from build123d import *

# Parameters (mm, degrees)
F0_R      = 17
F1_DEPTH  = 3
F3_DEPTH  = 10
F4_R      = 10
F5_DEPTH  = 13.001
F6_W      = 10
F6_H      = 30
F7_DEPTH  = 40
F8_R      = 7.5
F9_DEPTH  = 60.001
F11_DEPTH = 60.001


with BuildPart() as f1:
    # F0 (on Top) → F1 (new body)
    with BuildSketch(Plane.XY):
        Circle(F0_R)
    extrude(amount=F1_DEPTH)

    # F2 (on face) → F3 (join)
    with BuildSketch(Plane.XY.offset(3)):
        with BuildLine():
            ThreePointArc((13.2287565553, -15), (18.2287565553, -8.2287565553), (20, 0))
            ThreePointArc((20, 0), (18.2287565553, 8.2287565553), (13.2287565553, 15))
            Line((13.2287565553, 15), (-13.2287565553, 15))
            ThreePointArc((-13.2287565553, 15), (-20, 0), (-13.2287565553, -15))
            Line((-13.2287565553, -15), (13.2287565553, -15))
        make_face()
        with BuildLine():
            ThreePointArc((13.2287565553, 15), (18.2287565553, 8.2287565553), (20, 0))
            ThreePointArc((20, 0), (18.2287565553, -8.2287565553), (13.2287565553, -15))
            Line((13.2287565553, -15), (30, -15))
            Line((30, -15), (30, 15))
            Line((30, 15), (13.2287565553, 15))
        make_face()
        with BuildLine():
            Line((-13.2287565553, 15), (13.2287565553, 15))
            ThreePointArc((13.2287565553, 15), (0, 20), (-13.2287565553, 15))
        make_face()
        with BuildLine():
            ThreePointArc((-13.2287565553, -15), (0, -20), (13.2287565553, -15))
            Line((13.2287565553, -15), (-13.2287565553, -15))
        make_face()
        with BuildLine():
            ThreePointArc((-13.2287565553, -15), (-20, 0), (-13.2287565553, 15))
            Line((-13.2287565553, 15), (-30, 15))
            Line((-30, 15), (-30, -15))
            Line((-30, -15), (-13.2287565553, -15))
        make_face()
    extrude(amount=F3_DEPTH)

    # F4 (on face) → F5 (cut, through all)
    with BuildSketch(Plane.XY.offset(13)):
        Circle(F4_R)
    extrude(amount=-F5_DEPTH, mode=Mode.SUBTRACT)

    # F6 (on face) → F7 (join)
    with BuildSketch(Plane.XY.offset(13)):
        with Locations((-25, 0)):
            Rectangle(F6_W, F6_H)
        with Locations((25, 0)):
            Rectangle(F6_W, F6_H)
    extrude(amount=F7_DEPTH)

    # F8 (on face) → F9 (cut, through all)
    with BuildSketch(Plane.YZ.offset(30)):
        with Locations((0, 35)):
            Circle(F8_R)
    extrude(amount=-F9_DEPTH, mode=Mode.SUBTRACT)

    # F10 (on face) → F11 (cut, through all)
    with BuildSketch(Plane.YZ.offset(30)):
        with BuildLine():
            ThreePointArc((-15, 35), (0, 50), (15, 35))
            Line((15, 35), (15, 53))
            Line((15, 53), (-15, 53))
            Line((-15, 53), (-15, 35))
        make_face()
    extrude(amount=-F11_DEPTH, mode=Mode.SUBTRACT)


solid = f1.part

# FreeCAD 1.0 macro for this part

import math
import FreeCAD as App
import Part
import Sketcher


def add_polygon(sketch, points):
    """Adds a closed chain of lines whose ends are joined by coincident constraints."""
    first, n = sketch.GeometryCount, len(points)
    for a, b in zip(points, points[1:] + points[:1]):
        sketch.addGeometry(Part.LineSegment(App.Vector(*a, 0), App.Vector(*b, 0)), False)
    for i in range(n):
        sketch.addConstraint(Sketcher.Constraint("Coincident", first + i, 2, first + (i + 1) % n, 1))

doc = App.newDocument("Part")
body = doc.addObject("PartDesign::Body", "Body")

sketch1 = body.newObject("Sketcher::SketchObject", "Sketch")
sketch1.AttachmentSupport = (doc.getObject("XY_Plane"), [""])
sketch1.MapMode = "FlatFace"
sketch1.addGeometry(Part.Circle(App.Vector(0, 0, 0), App.Vector(0, 0, 1), 17), False)
sketch1.addConstraint([
    Sketcher.Constraint("Coincident", 0, 3, -1, 1),
    Sketcher.Constraint("Diameter", 0, 34.0),
])
pad1 = body.newObject("PartDesign::Pad", "Pad")
pad1.Profile = sketch1
pad1.Length = 3

sketch2 = body.newObject("Sketcher::SketchObject", "Sketch001")
sketch2.AttachmentSupport = (doc.getObject("XY_Plane"), [""])
sketch2.MapMode = "FlatFace"
sketch2.AttachmentOffset = App.Placement(App.Vector(0, 0, 3), App.Rotation())
sketch2.addGeometry([
    Part.ArcOfCircle(Part.Circle(App.Vector(0, 0, 0), App.Vector(0, 0, 1), 20), math.radians(-131), math.radians(-49)),
    Part.LineSegment(App.Vector(13, -15, 0), App.Vector(30, -15, 0)),
    Part.LineSegment(App.Vector(30, -15, 0), App.Vector(30, 15, 0)),
    Part.LineSegment(App.Vector(30, 15, 0), App.Vector(13, 15, 0)),
    Part.ArcOfCircle(Part.Circle(App.Vector(0, 0, 0), App.Vector(0, 0, 1), 20), math.radians(49), math.radians(131)),
    Part.LineSegment(App.Vector(-13, 15, 0), App.Vector(-30, 15, 0)),
    Part.LineSegment(App.Vector(-30, 15, 0), App.Vector(-30, -15, 0)),
    Part.LineSegment(App.Vector(-30, -15, 0), App.Vector(-13, -15, 0)),
], False)
sketch2.addConstraint([
    Sketcher.Constraint("Coincident", 0, 2, 1, 1),
    Sketcher.Constraint("Coincident", 1, 2, 2, 1),
    Sketcher.Constraint("Coincident", 2, 2, 3, 1),
    Sketcher.Constraint("Coincident", 3, 2, 4, 1),
    Sketcher.Constraint("Coincident", 4, 2, 5, 1),
    Sketcher.Constraint("Coincident", 5, 2, 6, 1),
    Sketcher.Constraint("Coincident", 6, 2, 7, 1),
    Sketcher.Constraint("Coincident", 7, 2, 0, 1),
    Sketcher.Constraint("Horizontal", 1),
    Sketcher.Constraint("Vertical", 2),
    Sketcher.Constraint("Horizontal", 3),
    Sketcher.Constraint("Horizontal", 5),
    Sketcher.Constraint("Vertical", 6),
    Sketcher.Constraint("Horizontal", 7),
    Sketcher.Constraint("Coincident", 0, 3, -1, 1),
    Sketcher.Constraint("Coincident", 4, 3, -1, 1),
    Sketcher.Constraint("Equal", 0, 4),
    Sketcher.Constraint("Symmetric", 1, 2, 5, 2, -1, 1),
    Sketcher.Constraint("Horizontal", 3, 2, 4, 2),
    Sketcher.Constraint("Horizontal", 1, 2, 6, 2),
    Sketcher.Constraint("Radius", 0, 20.0),
    Sketcher.Constraint("DistanceY", 2, 1, 2, 2, 30.0),
    Sketcher.Constraint("DistanceX", -1, 1, 1, 2, 30.0),
])
pad2 = body.newObject("PartDesign::Pad", "Pad001")
pad2.Profile = sketch2
pad2.Length = 10

sketch3 = body.newObject("Sketcher::SketchObject", "Sketch002")
sketch3.AttachmentSupport = (doc.getObject("XY_Plane"), [""])
sketch3.MapMode = "FlatFace"
sketch3.AttachmentOffset = App.Placement(App.Vector(0, 0, 13), App.Rotation())
sketch3.addGeometry(Part.Circle(App.Vector(0, 0, 0), App.Vector(0, 0, 1), 10), False)
sketch3.addConstraint([
    Sketcher.Constraint("Coincident", 0, 3, -1, 1),
    Sketcher.Constraint("Diameter", 0, 20.0),
])
pocket1 = body.newObject("PartDesign::Pocket", "Pocket")
pocket1.Profile = sketch3
pocket1.Type = "ThroughAll"

sketch4 = body.newObject("Sketcher::SketchObject", "Sketch003")
sketch4.AttachmentSupport = (doc.getObject("XY_Plane"), [""])
sketch4.MapMode = "FlatFace"
sketch4.AttachmentOffset = App.Placement(App.Vector(0, 0, 13), App.Rotation())
add_polygon(sketch4, [(-30, 15), (-30, -15), (-20, -15), (-20, 15)])
add_polygon(sketch4, [(20, 15), (20, -15), (30, -15), (30, 15)])
sketch4.addConstraint([
    Sketcher.Constraint("Vertical", 0),
    Sketcher.Constraint("Horizontal", 1),
    Sketcher.Constraint("Vertical", 2),
    Sketcher.Constraint("Horizontal", 3),
    Sketcher.Constraint("Vertical", 4),
    Sketcher.Constraint("Horizontal", 5),
    Sketcher.Constraint("Vertical", 6),
    Sketcher.Constraint("Horizontal", 7),
    Sketcher.Constraint("Symmetric", 2, 2, 4, 2, -1, 1),
    Sketcher.Constraint("Symmetric", 0, 2, 6, 2, -1, 1),
    Sketcher.Constraint("Horizontal", 1, 2, 4, 2),
    Sketcher.Constraint("DistanceX", 1, 1, 1, 2, 10.0),
    Sketcher.Constraint("DistanceY", 0, 2, 0, 1, 30.0),
    Sketcher.Constraint("DistanceX", 0, 2, -1, 1, 30.0),
])
pad3 = body.newObject("PartDesign::Pad", "Pad002")
pad3.Profile = sketch4
pad3.Length = 40

sketch5 = body.newObject("Sketcher::SketchObject", "Sketch004")
sketch5.AttachmentSupport = (doc.getObject("YZ_Plane"), [""])
sketch5.MapMode = "FlatFace"
sketch5.AttachmentOffset = App.Placement(App.Vector(0, 0, 30), App.Rotation())
sketch5.addGeometry(Part.Circle(App.Vector(0, 35, 0), App.Vector(0, 0, 1), 8), False)
sketch5.addConstraint([
    Sketcher.Constraint("PointOnObject", 0, 3, -2),
    Sketcher.Constraint("Diameter", 0, 15.0),
    Sketcher.Constraint("DistanceY", -1, 1, 0, 3, 35.0),
])
pocket2 = body.newObject("PartDesign::Pocket", "Pocket001")
pocket2.Profile = sketch5
pocket2.Type = "ThroughAll"

sketch6 = body.newObject("Sketcher::SketchObject", "Sketch005")
sketch6.AttachmentSupport = (doc.getObject("YZ_Plane"), [""])
sketch6.MapMode = "FlatFace"
sketch6.AttachmentOffset = App.Placement(App.Vector(0, 0, 30), App.Rotation())
sketch6.addGeometry([
    Part.ArcOfCircle(Part.Circle(App.Vector(0, 35, 0), App.Vector(0, 0, 1), 15), math.radians(0), math.radians(180)),
    Part.LineSegment(App.Vector(15, 35, 0), App.Vector(15, 53, 0)),
    Part.LineSegment(App.Vector(15, 53, 0), App.Vector(-15, 53, 0)),
    Part.LineSegment(App.Vector(-15, 53, 0), App.Vector(-15, 35, 0)),
], False)
sketch6.addConstraint([
    Sketcher.Constraint("Tangent", 0, 1, 1, 1),
    Sketcher.Constraint("Coincident", 1, 2, 2, 1),
    Sketcher.Constraint("Coincident", 2, 2, 3, 1),
    Sketcher.Constraint("Tangent", 3, 2, 0, 2),
    Sketcher.Constraint("Vertical", 1),
    Sketcher.Constraint("Horizontal", 2),
    Sketcher.Constraint("Vertical", 3),
    Sketcher.Constraint("PointOnObject", 0, 3, -2),
    Sketcher.Constraint("Radius", 0, 15.0),
    Sketcher.Constraint("DistanceY", 1, 1, 1, 2, 18.0),
    Sketcher.Constraint("DistanceY", -1, 1, 0, 3, 35.0),
])
pocket3 = body.newObject("PartDesign::Pocket", "Pocket002")
pocket3.Profile = sketch6
pocket3.Type = "ThroughAll"

doc.recompute()
